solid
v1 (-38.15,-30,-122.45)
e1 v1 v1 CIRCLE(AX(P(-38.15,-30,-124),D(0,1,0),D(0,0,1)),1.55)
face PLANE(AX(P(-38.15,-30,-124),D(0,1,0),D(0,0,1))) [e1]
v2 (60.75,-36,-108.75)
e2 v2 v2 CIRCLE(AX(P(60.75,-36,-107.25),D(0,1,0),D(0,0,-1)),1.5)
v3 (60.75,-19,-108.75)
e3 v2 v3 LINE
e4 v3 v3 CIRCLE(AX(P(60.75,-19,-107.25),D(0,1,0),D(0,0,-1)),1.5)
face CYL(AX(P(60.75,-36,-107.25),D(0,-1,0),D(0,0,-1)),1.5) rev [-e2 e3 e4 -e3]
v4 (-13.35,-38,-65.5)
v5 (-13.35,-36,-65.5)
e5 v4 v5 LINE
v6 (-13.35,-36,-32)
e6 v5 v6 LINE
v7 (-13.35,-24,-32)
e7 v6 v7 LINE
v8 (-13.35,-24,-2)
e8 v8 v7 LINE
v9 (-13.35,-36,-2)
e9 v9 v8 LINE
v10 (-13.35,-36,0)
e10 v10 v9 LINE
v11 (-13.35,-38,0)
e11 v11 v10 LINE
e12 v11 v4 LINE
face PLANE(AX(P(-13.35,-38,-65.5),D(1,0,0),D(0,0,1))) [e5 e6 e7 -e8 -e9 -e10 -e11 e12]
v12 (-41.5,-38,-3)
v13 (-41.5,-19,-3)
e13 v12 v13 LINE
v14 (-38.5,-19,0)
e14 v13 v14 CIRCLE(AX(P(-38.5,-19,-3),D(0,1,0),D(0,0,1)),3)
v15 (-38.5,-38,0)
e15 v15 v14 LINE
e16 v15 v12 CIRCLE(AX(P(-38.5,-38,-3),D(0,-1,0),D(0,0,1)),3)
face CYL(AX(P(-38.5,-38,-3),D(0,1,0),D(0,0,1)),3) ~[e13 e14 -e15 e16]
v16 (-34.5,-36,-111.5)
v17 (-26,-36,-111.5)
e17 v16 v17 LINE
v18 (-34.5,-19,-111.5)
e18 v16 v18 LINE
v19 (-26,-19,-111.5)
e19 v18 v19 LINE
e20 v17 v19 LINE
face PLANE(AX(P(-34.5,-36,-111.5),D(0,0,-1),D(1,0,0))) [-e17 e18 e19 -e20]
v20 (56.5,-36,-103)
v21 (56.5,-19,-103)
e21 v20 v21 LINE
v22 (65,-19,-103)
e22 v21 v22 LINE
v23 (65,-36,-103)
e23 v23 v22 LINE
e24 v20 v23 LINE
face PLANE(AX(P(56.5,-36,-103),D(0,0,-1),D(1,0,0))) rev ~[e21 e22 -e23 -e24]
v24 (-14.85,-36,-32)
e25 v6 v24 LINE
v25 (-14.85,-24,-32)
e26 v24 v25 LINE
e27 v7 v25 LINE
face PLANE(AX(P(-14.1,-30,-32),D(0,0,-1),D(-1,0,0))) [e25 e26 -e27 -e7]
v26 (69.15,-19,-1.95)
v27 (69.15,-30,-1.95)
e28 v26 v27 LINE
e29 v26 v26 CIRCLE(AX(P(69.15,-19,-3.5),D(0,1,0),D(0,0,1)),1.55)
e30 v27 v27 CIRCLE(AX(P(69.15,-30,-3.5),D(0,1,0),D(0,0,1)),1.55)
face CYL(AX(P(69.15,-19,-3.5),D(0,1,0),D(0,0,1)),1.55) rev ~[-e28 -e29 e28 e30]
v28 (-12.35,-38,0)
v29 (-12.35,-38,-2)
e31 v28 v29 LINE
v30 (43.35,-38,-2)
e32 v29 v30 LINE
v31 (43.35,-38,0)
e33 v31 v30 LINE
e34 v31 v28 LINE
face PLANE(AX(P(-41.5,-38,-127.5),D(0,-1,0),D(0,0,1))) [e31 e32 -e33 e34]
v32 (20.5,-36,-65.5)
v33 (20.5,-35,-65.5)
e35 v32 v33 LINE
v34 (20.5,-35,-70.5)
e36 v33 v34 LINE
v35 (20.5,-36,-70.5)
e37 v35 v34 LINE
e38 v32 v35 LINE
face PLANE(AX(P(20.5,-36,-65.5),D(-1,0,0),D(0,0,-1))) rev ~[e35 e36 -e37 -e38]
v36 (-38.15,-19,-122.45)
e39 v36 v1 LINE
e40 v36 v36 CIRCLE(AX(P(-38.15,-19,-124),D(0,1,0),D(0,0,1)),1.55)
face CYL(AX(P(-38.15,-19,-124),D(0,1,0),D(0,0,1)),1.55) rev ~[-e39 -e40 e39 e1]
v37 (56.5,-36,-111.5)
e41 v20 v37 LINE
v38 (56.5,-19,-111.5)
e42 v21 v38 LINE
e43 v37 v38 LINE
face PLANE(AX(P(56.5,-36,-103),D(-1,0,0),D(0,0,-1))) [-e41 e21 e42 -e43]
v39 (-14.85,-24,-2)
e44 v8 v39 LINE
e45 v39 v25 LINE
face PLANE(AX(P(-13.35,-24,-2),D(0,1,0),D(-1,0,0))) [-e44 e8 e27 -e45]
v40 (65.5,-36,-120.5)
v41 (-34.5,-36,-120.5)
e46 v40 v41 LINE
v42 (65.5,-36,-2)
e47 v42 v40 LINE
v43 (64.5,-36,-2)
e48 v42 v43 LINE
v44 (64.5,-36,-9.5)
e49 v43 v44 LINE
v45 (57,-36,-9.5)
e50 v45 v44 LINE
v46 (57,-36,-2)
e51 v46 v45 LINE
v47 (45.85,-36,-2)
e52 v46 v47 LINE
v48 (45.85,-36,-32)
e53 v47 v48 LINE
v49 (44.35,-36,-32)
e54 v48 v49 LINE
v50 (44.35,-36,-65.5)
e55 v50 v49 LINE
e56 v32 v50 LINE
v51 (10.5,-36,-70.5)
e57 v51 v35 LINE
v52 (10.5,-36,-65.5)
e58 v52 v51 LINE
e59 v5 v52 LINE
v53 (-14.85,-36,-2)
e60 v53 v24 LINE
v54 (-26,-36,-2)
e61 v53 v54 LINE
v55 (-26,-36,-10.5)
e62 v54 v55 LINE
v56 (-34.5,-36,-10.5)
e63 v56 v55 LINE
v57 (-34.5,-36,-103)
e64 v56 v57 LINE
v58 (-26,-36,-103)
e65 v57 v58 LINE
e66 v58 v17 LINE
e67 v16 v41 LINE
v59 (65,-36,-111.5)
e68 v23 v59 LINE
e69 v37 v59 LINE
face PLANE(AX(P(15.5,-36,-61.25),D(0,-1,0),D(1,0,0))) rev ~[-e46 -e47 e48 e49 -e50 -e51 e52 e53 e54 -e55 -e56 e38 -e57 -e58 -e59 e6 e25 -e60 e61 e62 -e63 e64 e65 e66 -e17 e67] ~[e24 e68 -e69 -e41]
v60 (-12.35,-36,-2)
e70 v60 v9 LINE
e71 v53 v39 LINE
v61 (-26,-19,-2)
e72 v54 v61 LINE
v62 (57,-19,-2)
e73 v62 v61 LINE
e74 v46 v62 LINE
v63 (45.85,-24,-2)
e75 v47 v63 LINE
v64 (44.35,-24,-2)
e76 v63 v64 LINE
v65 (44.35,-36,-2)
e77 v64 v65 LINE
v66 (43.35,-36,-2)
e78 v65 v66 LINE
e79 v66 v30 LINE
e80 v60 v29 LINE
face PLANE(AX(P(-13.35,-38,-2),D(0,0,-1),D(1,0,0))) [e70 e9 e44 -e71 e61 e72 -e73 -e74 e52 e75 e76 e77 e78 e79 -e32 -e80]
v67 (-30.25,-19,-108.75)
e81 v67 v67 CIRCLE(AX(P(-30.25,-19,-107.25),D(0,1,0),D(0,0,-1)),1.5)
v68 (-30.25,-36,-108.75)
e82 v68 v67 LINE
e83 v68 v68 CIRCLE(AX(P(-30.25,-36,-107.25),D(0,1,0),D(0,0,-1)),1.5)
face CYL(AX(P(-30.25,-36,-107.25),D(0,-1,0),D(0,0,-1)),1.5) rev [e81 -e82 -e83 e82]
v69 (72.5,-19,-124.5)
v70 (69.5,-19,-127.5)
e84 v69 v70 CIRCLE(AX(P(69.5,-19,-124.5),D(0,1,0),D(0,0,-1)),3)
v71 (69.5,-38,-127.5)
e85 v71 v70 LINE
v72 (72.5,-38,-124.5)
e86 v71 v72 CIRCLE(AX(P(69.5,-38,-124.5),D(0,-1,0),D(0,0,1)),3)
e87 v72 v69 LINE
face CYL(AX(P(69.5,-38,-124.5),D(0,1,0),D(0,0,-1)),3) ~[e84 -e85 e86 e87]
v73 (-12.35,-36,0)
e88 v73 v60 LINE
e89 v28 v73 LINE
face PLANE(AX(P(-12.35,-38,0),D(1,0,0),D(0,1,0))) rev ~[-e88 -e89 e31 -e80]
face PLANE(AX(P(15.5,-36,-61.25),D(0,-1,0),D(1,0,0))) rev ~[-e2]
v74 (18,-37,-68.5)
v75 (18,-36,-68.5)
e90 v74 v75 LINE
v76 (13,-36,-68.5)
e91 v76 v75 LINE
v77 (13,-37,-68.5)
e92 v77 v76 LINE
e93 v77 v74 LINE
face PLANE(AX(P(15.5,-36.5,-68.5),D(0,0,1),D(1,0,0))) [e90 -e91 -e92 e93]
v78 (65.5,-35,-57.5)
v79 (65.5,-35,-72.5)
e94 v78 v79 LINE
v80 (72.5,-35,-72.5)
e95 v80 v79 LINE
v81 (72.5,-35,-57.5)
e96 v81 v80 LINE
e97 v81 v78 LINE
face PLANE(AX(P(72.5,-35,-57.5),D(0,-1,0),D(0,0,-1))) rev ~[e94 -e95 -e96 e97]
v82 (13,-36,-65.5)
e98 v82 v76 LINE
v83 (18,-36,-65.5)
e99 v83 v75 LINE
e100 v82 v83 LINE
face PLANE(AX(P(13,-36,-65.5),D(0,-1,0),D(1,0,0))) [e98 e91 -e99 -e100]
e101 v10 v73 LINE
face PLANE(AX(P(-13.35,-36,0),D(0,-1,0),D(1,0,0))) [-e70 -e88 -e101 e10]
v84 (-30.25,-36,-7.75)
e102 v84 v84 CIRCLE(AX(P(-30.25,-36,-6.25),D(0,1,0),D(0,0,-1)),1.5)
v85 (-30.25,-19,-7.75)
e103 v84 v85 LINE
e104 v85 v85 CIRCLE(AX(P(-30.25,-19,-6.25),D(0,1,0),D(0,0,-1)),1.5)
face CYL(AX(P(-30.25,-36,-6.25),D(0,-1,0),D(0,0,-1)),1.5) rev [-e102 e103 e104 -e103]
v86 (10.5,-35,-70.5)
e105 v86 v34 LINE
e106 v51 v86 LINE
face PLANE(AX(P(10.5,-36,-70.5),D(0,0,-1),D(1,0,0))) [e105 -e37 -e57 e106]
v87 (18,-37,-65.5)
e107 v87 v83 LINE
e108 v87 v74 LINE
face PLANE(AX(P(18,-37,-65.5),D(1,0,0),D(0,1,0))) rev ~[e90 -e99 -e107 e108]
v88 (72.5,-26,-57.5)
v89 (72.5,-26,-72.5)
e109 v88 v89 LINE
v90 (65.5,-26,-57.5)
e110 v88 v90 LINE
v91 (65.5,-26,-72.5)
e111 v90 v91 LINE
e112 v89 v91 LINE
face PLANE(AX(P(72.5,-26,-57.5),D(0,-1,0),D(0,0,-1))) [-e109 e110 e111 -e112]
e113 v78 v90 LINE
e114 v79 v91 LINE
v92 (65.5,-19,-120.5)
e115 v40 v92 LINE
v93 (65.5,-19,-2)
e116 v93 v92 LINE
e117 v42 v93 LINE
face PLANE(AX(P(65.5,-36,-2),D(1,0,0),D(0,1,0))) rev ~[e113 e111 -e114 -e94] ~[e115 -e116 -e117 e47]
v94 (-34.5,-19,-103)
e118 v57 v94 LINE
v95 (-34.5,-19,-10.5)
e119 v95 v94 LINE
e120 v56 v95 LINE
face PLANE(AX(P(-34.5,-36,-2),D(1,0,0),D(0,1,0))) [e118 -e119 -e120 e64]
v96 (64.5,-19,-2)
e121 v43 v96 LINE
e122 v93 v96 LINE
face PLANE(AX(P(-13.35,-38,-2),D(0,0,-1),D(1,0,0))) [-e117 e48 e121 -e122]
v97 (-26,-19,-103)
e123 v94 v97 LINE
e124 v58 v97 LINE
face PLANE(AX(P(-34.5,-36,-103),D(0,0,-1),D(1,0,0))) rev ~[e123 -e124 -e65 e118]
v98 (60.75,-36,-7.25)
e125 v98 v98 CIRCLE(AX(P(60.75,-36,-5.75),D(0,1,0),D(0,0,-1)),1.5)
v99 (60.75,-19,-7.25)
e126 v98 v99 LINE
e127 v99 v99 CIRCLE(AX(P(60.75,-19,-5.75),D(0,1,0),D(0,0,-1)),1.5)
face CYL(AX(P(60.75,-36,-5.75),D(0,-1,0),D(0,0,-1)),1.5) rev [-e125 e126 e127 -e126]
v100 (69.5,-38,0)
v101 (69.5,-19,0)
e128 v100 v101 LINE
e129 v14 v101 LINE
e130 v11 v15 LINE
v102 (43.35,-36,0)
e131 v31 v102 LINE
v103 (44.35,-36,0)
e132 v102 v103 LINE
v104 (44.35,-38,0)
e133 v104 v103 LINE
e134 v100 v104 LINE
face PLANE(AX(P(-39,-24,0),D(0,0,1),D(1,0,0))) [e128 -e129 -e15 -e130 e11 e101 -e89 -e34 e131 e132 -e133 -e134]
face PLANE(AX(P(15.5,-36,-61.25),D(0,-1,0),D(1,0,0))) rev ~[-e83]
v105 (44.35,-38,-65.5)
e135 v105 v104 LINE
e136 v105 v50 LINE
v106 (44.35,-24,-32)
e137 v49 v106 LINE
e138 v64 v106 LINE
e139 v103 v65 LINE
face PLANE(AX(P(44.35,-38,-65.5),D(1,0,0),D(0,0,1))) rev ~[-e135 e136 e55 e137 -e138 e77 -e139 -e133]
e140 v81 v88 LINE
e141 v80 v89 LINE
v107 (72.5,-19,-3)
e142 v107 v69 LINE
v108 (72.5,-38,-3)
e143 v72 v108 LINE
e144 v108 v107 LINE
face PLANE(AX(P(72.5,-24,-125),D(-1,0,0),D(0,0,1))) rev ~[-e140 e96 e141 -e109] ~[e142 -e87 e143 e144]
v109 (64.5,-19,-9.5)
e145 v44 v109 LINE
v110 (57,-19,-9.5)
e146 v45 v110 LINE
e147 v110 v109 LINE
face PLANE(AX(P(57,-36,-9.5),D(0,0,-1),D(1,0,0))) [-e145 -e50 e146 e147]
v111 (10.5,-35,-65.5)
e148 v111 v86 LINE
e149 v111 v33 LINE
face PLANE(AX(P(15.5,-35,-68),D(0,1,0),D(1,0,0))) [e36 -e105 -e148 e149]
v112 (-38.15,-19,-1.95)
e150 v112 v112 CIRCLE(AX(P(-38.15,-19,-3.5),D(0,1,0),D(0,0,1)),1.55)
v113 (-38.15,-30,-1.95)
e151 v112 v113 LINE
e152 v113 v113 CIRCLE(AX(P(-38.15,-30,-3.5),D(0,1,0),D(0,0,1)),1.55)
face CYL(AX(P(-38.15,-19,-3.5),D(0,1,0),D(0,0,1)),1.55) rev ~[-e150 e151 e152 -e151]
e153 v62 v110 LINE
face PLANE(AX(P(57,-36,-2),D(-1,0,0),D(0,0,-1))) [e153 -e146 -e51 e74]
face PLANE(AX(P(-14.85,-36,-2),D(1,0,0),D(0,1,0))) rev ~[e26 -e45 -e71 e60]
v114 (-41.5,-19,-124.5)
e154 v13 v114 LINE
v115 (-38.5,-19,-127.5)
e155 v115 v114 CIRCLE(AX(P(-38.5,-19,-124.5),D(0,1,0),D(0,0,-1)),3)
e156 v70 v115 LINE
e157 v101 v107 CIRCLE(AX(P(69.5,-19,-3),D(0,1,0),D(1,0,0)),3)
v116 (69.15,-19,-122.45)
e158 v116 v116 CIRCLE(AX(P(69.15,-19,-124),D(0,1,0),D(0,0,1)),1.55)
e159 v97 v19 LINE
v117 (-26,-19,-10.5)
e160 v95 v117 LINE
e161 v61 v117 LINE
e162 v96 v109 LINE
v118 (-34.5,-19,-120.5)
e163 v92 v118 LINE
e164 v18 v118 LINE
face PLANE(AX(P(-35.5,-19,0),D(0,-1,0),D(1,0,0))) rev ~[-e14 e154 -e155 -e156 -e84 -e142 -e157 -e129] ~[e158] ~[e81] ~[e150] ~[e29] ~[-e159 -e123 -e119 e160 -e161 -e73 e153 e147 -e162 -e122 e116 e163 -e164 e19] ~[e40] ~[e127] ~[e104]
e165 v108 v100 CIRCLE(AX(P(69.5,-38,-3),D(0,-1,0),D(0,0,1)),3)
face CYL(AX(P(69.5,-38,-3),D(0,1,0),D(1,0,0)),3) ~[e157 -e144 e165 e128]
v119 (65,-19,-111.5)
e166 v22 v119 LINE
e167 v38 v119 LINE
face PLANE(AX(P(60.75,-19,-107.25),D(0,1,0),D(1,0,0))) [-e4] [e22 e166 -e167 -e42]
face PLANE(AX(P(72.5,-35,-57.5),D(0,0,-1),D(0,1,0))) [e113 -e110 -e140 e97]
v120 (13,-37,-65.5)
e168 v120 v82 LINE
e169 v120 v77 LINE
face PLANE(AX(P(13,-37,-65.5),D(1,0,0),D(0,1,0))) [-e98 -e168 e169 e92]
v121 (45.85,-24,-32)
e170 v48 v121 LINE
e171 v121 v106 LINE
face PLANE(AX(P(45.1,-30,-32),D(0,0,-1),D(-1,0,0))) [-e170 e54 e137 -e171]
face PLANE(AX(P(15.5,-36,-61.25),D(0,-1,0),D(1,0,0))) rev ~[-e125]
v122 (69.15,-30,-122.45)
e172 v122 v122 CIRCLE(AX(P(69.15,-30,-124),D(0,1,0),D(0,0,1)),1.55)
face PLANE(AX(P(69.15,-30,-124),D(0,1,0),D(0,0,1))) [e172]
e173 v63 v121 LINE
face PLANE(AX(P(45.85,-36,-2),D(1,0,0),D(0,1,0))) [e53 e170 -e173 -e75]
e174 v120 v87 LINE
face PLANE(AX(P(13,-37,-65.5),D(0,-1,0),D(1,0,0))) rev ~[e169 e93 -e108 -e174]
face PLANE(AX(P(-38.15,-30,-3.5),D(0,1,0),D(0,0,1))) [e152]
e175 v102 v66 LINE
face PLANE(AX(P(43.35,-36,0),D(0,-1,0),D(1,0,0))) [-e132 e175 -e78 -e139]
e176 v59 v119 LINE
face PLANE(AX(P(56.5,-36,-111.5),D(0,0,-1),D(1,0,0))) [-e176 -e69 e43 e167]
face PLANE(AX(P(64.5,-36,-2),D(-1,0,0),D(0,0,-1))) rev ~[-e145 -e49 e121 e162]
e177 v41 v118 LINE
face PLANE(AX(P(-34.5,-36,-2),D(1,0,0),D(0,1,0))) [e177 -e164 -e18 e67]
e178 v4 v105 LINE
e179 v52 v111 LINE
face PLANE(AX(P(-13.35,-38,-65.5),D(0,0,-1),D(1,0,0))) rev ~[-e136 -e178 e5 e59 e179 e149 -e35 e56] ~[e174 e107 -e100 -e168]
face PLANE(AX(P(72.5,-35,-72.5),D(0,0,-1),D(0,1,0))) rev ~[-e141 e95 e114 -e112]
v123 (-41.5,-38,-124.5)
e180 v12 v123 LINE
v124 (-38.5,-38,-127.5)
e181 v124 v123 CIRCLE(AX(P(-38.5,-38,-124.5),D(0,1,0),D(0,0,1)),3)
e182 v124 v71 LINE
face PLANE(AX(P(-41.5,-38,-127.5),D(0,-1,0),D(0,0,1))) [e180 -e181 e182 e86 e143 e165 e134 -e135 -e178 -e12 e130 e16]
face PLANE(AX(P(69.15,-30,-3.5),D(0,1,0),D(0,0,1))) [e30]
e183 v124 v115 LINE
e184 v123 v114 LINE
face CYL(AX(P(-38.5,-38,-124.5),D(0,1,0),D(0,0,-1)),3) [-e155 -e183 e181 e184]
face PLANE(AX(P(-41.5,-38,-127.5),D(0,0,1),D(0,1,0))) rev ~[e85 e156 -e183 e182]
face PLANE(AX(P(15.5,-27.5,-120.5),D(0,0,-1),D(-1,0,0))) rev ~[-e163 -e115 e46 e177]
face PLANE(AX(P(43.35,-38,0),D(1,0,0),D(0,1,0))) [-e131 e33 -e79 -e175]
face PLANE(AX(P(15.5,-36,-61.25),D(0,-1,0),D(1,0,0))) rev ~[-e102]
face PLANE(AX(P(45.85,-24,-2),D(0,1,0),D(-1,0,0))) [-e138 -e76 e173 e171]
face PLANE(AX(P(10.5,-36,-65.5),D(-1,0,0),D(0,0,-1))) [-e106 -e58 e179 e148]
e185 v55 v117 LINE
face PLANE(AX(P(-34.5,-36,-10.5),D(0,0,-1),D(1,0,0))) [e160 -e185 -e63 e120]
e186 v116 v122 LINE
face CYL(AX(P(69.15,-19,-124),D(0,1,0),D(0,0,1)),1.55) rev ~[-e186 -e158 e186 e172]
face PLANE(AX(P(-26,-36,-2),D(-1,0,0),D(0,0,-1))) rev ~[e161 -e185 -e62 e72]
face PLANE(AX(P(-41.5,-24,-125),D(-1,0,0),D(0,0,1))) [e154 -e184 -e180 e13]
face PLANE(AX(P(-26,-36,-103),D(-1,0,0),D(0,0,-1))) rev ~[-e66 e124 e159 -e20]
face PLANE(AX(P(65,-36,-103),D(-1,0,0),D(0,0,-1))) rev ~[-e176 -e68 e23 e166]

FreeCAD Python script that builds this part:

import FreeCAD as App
import Part
import Sketcher
from FreeCAD import Vector


def edges_at(feature, points):
    """Names of the edges that pass closest to the given points."""
    edges = feature.Shape.Edges
    near = lambda p: min(range(len(edges)), key=lambda i: edges[i].distToShape(Part.Vertex(*p))[0])
    return sorted({f"Edge{near(p) + 1}" for p in points})


def add_polygon(sketch, points):
    """Adds a closed chain of lines whose ends are joined by coincident constraints."""
    first, n = sketch.GeometryCount, len(points)
    for a, b in zip(points, points[1:] + points[:1]):
        sketch.addGeometry(Part.LineSegment(App.Vector(*a, 0), App.Vector(*b, 0)), False)
    for i in range(n):
        sketch.addConstraint(Sketcher.Constraint("Coincident", first + i, 2, first + (i + 1) % n, 1))

doc = App.newDocument("Part")
body = doc.addObject("PartDesign::Body", "Body")

# Sketch on XY plane
sketch1 = doc.addObject("Sketcher::SketchObject", "Sketch")
body.addObject(sketch1)
sketch1.AttachmentSupport = (doc.XY_Plane, [""])
sketch1.MapMode = "FlatFace"
add_polygon(sketch1, [(39, 0), (0, 0), (0, -10), (-35.5, -10), (-35.5, -19), (-36.5, -19), (-36.5, -36), (67.5, -36), (67.5, -19), (66.5, -19), (66.5, -10), (39, -10)])  # lines 0-11
sketch1.addConstraint([
    Sketcher.Constraint("Horizontal", 0),
    Sketcher.Constraint("Vertical", 1),
    Sketcher.Constraint("Horizontal", 2),
    Sketcher.Constraint("Vertical", 3),
    Sketcher.Constraint("Horizontal", 4),
    Sketcher.Constraint("Vertical", 5),
    Sketcher.Constraint("Horizontal", 6),
    Sketcher.Constraint("Vertical", 7),
    Sketcher.Constraint("Horizontal", 8),
    Sketcher.Constraint("Vertical", 9),
    Sketcher.Constraint("Horizontal", 10),
    Sketcher.Constraint("Vertical", 11),
    Sketcher.Constraint("Coincident", 0, 2, -1, 1),
    Sketcher.Constraint("Horizontal", 4, 2, 7, 2),
    Sketcher.Constraint("Horizontal", 2, 2, 9, 2),
    Sketcher.Constraint("Equal", 4, 8),
    Sketcher.Constraint("DistanceX", 0, 2, 0, 1, 39.0),
    Sketcher.Constraint("DistanceX", 4, 2, 4, 1, 1.0),
    Sketcher.Constraint("DistanceX", 6, 1, 6, 2, 104.0),
    Sketcher.Constraint("DistanceY", 1, 2, 1, 1, 10.0),
    Sketcher.Constraint("DistanceY", 3, 2, 3, 1, 9.0),
    Sketcher.Constraint("DistanceY", 5, 2, 5, 1, 17.0),
    Sketcher.Constraint("DistanceX", 2, 2, 2, 1, 35.5),
])
pad1 = doc.addObject("PartDesign::Pad", "Pad")
body.addObject(pad1)
pad1.Profile = sketch1
pad1.Length = 2
pad1.Reversed = True

# Sketch on XY plane
sketch2 = doc.addObject("Sketcher::SketchObject", "Sketch001")
body.addObject(sketch2)
sketch2.AttachmentSupport = (doc.XY_Plane, [""])
sketch2.MapMode = "FlatFace"
sketch2.AttachmentOffset = App.Placement(Vector(0, 0, -2), App.Rotation())
add_polygon(sketch2, [(67.5, -36), (65.5, -36), (65.5, -11.5), (66.5, -11.5), (66.5, -19), (67.5, -19)])  # lines 0-5
add_polygon(sketch2, [(-34.5, -36), (-36.5, -36), (-36.5, -19), (-35.5, -19), (-35.5, -11.5), (-34.5, -11.5)])  # lines 6-11
sketch2.addConstraint([
    Sketcher.Constraint("Horizontal", 0),
    Sketcher.Constraint("Vertical", 1),
    Sketcher.Constraint("Horizontal", 2),
    Sketcher.Constraint("Vertical", 3),
    Sketcher.Constraint("Horizontal", 4),
    Sketcher.Constraint("Vertical", 5),
    Sketcher.Constraint("Horizontal", 6),
    Sketcher.Constraint("Vertical", 7),
    Sketcher.Constraint("Horizontal", 8),
    Sketcher.Constraint("Vertical", 9),
    Sketcher.Constraint("Horizontal", 10),
    Sketcher.Constraint("Vertical", 11),
    Sketcher.Constraint("Horizontal", 5, 2, 6, 2),
    Sketcher.Constraint("Horizontal", 4, 2, 7, 2),
    Sketcher.Constraint("Horizontal", 2, 2, 9, 2),
    Sketcher.Constraint("Equal", 2, 4),
    Sketcher.Constraint("Equal", 0, 6),
    Sketcher.Constraint("Equal", 4, 8),
    Sketcher.Constraint("DistanceX", 0, 2, 0, 1, 2.0),
    Sketcher.Constraint("DistanceY", 5, 2, 5, 1, 17.0),
    Sketcher.Constraint("DistanceY", 1, 1, 1, 2, 24.5),
    Sketcher.Constraint("DistanceY", 0, 2, -1, 1, 36.0),
    Sketcher.Constraint("DistanceX", 6, 2, 0, 2, 102.0),
    Sketcher.Constraint("DistanceX", -1, 1, 0, 2, 65.5),
])
pad2 = doc.addObject("PartDesign::Pad", "Pad001")
body.addObject(pad2)
pad2.Profile = sketch2
pad2.Length = 120.5
pad2.Reversed = True

# Sketch on XZ plane
sketch3 = doc.addObject("Sketcher::SketchObject", "Sketch002")
body.addObject(sketch3)
sketch3.AttachmentSupport = (doc.XZ_Plane, [""])
sketch3.MapMode = "FlatFace"
sketch3.AttachmentOffset = App.Placement(Vector(0, 0, 36), App.Rotation())
add_polygon(sketch3, [(-36, 0), (-36, -122), (68, -122), (68, 0)])  # lines 0-3
sketch3.addConstraint([
    Sketcher.Constraint("Vertical", 0),
    Sketcher.Constraint("Horizontal", 1),
    Sketcher.Constraint("Vertical", 2),
    Sketcher.Constraint("Horizontal", 3),
    Sketcher.Constraint("PointOnObject", 2, 2, -1),
    Sketcher.Constraint("DistanceX", 1, 1, 1, 2, 104.0),
    Sketcher.Constraint("DistanceY", 0, 2, 0, 1, 122.5),
    Sketcher.Constraint("DistanceX", 0, 2, -1, 1, 36.5),
])
pad3 = doc.addObject("PartDesign::Pad", "Pad002")
body.addObject(pad3)
pad3.Profile = sketch3
pad3.Length = 2

# Sketch on XY plane
sketch4 = doc.addObject("Sketcher::SketchObject", "Sketch003")
body.addObject(sketch4)
sketch4.AttachmentSupport = (doc.XY_Plane, [""])
sketch4.MapMode = "FlatFace"
sketch4.AttachmentOffset = App.Placement(Vector(0, 0, -122.5), App.Rotation())
add_polygon(sketch4, [(66, -19), (66, -36), (-34, -36), (-34, -19)])  # lines 0-3
sketch4.addConstraint([
    Sketcher.Constraint("Vertical", 0),
    Sketcher.Constraint("Horizontal", 1),
    Sketcher.Constraint("Vertical", 2),
    Sketcher.Constraint("Horizontal", 3),
    Sketcher.Constraint("DistanceX", 1, 2, 1, 1, 100.0),
    Sketcher.Constraint("DistanceY", 0, 2, 0, 1, 17.0),
    Sketcher.Constraint("DistanceY", 0, 2, -1, 1, 36.0),
    Sketcher.Constraint("DistanceX", -1, 1, 0, 2, 65.5),
])
pad4 = doc.addObject("PartDesign::Pad", "Pad003")
body.addObject(pad4)
pad4.Profile = sketch4
pad4.Length = 2

# Sketch on XZ plane
sketch5 = doc.addObject("Sketcher::SketchObject", "Sketch004")
body.addObject(sketch5)
sketch5.AttachmentSupport = (doc.XZ_Plane, [""])
sketch5.MapMode = "FlatFace"
sketch5.AttachmentOffset = App.Placement(Vector(0, 0, 36), App.Rotation())
add_polygon(sketch5, [(-34.5, -10.5), (-34.5, -2), (-26, -2), (-26, -10.5)])  # lines 0-3
sketch5.addGeometry(Part.Circle(Vector(-30.2, -6.2, 0), Vector(0, 0, 1), 1.5), False)  # 4
add_polygon(sketch5, [(-34.5, -111.5), (-34.5, -103), (-26, -103), (-26, -111.5)])  # lines 5-8
sketch5.addGeometry(Part.Circle(Vector(-30.2, -107.2, 0), Vector(0, 0, 1), 1.5), False)  # 9
add_polygon(sketch5, [(56.5, -111.5), (56.5, -103), (65, -103), (65, -111.5)])  # lines 10-13
sketch5.addGeometry(Part.Circle(Vector(60.8, -107.2, 0), Vector(0, 0, 1), 1.5), False)  # 14
add_polygon(sketch5, [(57, -9.5), (57, -2), (64.5, -2), (64.5, -9.5)])  # lines 15-18
sketch5.addGeometry(Part.Circle(Vector(60.8, -5.8, 0), Vector(0, 0, 1), 1.5), False)  # 19
sketch5.addConstraint([
    Sketcher.Constraint("Vertical", 0),
    Sketcher.Constraint("Horizontal", 1),
    Sketcher.Constraint("Vertical", 2),
    Sketcher.Constraint("Horizontal", 3),
    Sketcher.Constraint("Vertical", 5),
    Sketcher.Constraint("Horizontal", 6),
    Sketcher.Constraint("Vertical", 7),
    Sketcher.Constraint("Horizontal", 8),
    Sketcher.Constraint("Vertical", 10),
    Sketcher.Constraint("Horizontal", 11),
    Sketcher.Constraint("Vertical", 12),
    Sketcher.Constraint("Horizontal", 13),
    Sketcher.Constraint("Vertical", 15),
    Sketcher.Constraint("Horizontal", 16),
    Sketcher.Constraint("Vertical", 17),
    Sketcher.Constraint("Horizontal", 18),
    Sketcher.Constraint("Equal", 4, 9),
    Sketcher.Constraint("Equal", 9, 14),
    Sketcher.Constraint("Equal", 14, 19),
    Sketcher.Constraint("Horizontal", 9, 3, 14, 3),
    Sketcher.Constraint("Horizontal", 6, 2, 10, 2),
    Sketcher.Constraint("Horizontal", 8, 2, 12, 2),
    Sketcher.Constraint("Horizontal", 1, 2, 15, 2),
    Sketcher.Constraint("Vertical", 4, 3, 9, 3),
    Sketcher.Constraint("Vertical", 14, 3, 19, 3),
    Sketcher.Constraint("Vertical", 3, 2, 5, 2),
    Sketcher.Constraint("Vertical", 2, 2, 6, 2),
    Sketcher.Constraint("Equal", 8, 11),
    Sketcher.Constraint("Equal", 13, 0),
    Sketcher.Constraint("Equal", 2, 5),
    Sketcher.Constraint("Equal", 18, 15),
    Sketcher.Constraint("Diameter", 4, 3.0),
    Sketcher.Constraint("DistanceX", 1, 1, 1, 2, 8.5),
    Sketcher.Constraint("DistanceX", 16, 1, 16, 2, 7.5),
    Sketcher.Constraint("DistanceY", 0, 2, -1, 1, 2.0),
    Sketcher.Constraint("DistanceX", 1, 2, -1, 1, 26.0),
    Sketcher.Constraint("DistanceY", 5, 2, -1, 1, 103.0),
    Sketcher.Constraint("DistanceX", -1, 1, 11, 2, 65.0),
    Sketcher.Constraint("DistanceX", -1, 1, 15, 2, 57.0),
    Sketcher.Constraint("DistanceY", 9, 3, 4, 3, 101.0),
    Sketcher.Constraint("DistanceX", 9, 3, 14, 3, 91.0),
    Sketcher.Constraint("DistanceY", 4, 3, 19, 3, 0.5),
    Sketcher.Constraint("DistanceX", 4, 3, -1, 1, 30.25),
    Sketcher.Constraint("DistanceY", 4, 3, -1, 1, 6.25),
])
pad5 = doc.addObject("PartDesign::Pad", "Pad004")
body.addObject(pad5)
pad5.Profile = sketch5
pad5.Length = 17
pad5.Reversed = True

# Sketch on XY plane
sketch6 = doc.addObject("Sketcher::SketchObject", "Sketch005")
body.addObject(sketch6)
sketch6.AttachmentSupport = (doc.XY_Plane, [""])
sketch6.MapMode = "FlatFace"
add_polygon(sketch6, [(-42, -10), (-42, -38), (-36, -38), (-36, -10)])  # lines 0-3
add_polygon(sketch6, [(68, -10), (68, -38), (72, -38), (72, -10)])  # lines 4-7
sketch6.addConstraint([
    Sketcher.Constraint("Vertical", 0),
    Sketcher.Constraint("Horizontal", 1),
    Sketcher.Constraint("Vertical", 2),
    Sketcher.Constraint("Horizontal", 3),
    Sketcher.Constraint("Vertical", 4),
    Sketcher.Constraint("Horizontal", 5),
    Sketcher.Constraint("Vertical", 6),
    Sketcher.Constraint("Horizontal", 7),
    Sketcher.Constraint("Horizontal", 1, 2, 4, 2),
    Sketcher.Constraint("Horizontal", 3, 2, 6, 2),
    Sketcher.Constraint("Equal", 3, 5),
    Sketcher.Constraint("DistanceX", 1, 1, 1, 2, 5.0),
    Sketcher.Constraint("DistanceY", 0, 2, 0, 1, 28.0),
    Sketcher.Constraint("DistanceY", 0, 2, -1, 1, 38.0),
    Sketcher.Constraint("DistanceX", 1, 2, 4, 2, 104.0),
    Sketcher.Constraint("DistanceX", 0, 2, -1, 1, 41.5),
])
pad6 = doc.addObject("PartDesign::Pad", "Pad005")
body.addObject(pad6)
pad6.Profile = sketch6
pad6.Length = 122.5
pad6.Reversed = True

# Sketch on YZ plane
sketch7 = doc.addObject("Sketcher::SketchObject", "Sketch006")
body.addObject(sketch7)
sketch7.AttachmentSupport = (doc.YZ_Plane, [""])
sketch7.MapMode = "FlatFace"
sketch7.AttachmentOffset = App.Placement(Vector(0, 0, -41.5), App.Rotation())
add_polygon(sketch7, [(-10, -128), (-38, -128), (-38, -122), (-10, -122)])  # lines 0-3
sketch7.addConstraint([
    Sketcher.Constraint("Horizontal", 0),
    Sketcher.Constraint("Vertical", 1),
    Sketcher.Constraint("Horizontal", 2),
    Sketcher.Constraint("Vertical", 3),
    Sketcher.Constraint("DistanceX", 0, 2, 0, 1, 28.0),
    Sketcher.Constraint("DistanceY", 1, 1, 1, 2, 5.0),
    Sketcher.Constraint("DistanceX", 0, 2, -1, 1, 38.0),
    Sketcher.Constraint("DistanceY", 0, 2, -1, 1, 127.5),
])
pad7 = doc.addObject("PartDesign::Pad", "Pad006")
body.addObject(pad7)
pad7.Profile = sketch7
pad7.Length = 114
doc.recompute()

fillet = doc.addObject("PartDesign::Fillet", "Fillet")
body.addObject(fillet)
fillet.Base = (pad7, edges_at(pad7, [
    (-41.5, -24, 0),
    (72.5, -24, 0),
    (-41.5, -24, -127.5),
    (72.5, -24, -127.5),
]))
fillet.Radius = 3

# Sketch on XY plane
sketch8 = doc.addObject("Sketcher::SketchObject", "Sketch007")
body.addObject(sketch8)
sketch8.AttachmentSupport = (doc.XY_Plane, [""])
sketch8.MapMode = "FlatFace"
add_polygon(sketch8, [(-42, -10), (-42, -19), (-36, -19), (-36, -10)])  # lines 0-3
sketch8.addConstraint([
    Sketcher.Constraint("Vertical", 0),
    Sketcher.Constraint("Horizontal", 1),
    Sketcher.Constraint("Vertical", 2),
    Sketcher.Constraint("Horizontal", 3),
    Sketcher.Constraint("DistanceX", 1, 1, 1, 2, 5.0),
    Sketcher.Constraint("DistanceY", 0, 2, 0, 1, 9.0),
    Sketcher.Constraint("DistanceY", 0, 2, -1, 1, 19.0),
    Sketcher.Constraint("DistanceX", 0, 2, -1, 1, 41.5),
])
pocket1 = doc.addObject("PartDesign::Pocket", "Pocket")
body.addObject(pocket1)
pocket1.Profile = sketch8
pocket1.Length = 127.5

# Sketch on XY plane
sketch9 = doc.addObject("Sketcher::SketchObject", "Sketch008")
body.addObject(sketch9)
sketch9.AttachmentSupport = (doc.XY_Plane, [""])
sketch9.MapMode = "FlatFace"
add_polygon(sketch9, [(68, -10), (68, -19), (72, -19), (72, -10)])  # lines 0-3
sketch9.addConstraint([
    Sketcher.Constraint("Vertical", 0),
    Sketcher.Constraint("Horizontal", 1),
    Sketcher.Constraint("Vertical", 2),
    Sketcher.Constraint("Horizontal", 3),
    Sketcher.Constraint("DistanceX", 1, 1, 1, 2, 5.0),
    Sketcher.Constraint("DistanceY", 0, 2, 0, 1, 9.0),
    Sketcher.Constraint("DistanceY", 0, 2, -1, 1, 19.0),
    Sketcher.Constraint("DistanceX", -1, 1, 0, 2, 67.5),
])
pocket2 = doc.addObject("PartDesign::Pocket", "Pocket001")
body.addObject(pocket2)
pocket2.Profile = sketch9
pocket2.Length = 127.5

# Sketch on YZ plane
sketch10 = doc.addObject("Sketcher::SketchObject", "Sketch009")
body.addObject(sketch10)
sketch10.AttachmentSupport = (doc.YZ_Plane, [""])
sketch10.MapMode = "FlatFace"
sketch10.AttachmentOffset = App.Placement(Vector(0, 0, 67.5), App.Rotation())
add_polygon(sketch10, [(-10, -122), (-19, -122), (-19, -128), (-10, -128)])  # lines 0-3
sketch10.addConstraint([
    Sketcher.Constraint("Horizontal", 0),
    Sketcher.Constraint("Vertical", 1),
    Sketcher.Constraint("Horizontal", 2),
    Sketcher.Constraint("Vertical", 3),
    Sketcher.Constraint("DistanceX", 0, 2, 0, 1, 9.0),
    Sketcher.Constraint("DistanceY", 1, 2, 1, 1, 5.0),
    Sketcher.Constraint("DistanceX", 0, 2, -1, 1, 19.0),
    Sketcher.Constraint("DistanceY", 0, 2, -1, 1, 122.5),
])
pocket3 = doc.addObject("PartDesign::Pocket", "Pocket002")
body.addObject(pocket3)
pocket3.Profile = sketch10
pocket3.Type = "UpToFirst"

# Sketch on XZ plane
sketch11 = doc.addObject("Sketcher::SketchObject", "Sketch010")
body.addObject(sketch11)
sketch11.AttachmentSupport = (doc.XZ_Plane, [""])
sketch11.MapMode = "FlatFace"
sketch11.AttachmentOffset = App.Placement(Vector(0, 0, 19), App.Rotation())
sketch11.addGeometry([
    Part.Circle(Vector(-38.1, -124, 0), Vector(0, 0, 1), 1.6),
    Part.Circle(Vector(69.2, -124, 0), Vector(0, 0, 1), 1.6),
    Part.Circle(Vector(-38.1, -3.5, 0), Vector(0, 0, 1), 1.6),
    Part.Circle(Vector(69.2, -3.5, 0), Vector(0, 0, 1), 1.6),
], False)
sketch11.addConstraint([
    Sketcher.Constraint("Equal", 0, 1),
    Sketcher.Constraint("Equal", 1, 2),
    Sketcher.Constraint("Equal", 2, 3),
    Sketcher.Constraint("Horizontal", 0, 3, 1, 3),
    Sketcher.Constraint("Horizontal", 2, 3, 3, 3),
    Sketcher.Constraint("Vertical", 0, 3, 2, 3),
    Sketcher.Constraint("Vertical", 1, 3, 3, 3),
    Sketcher.Constraint("Diameter", 0, 3.1),
    Sketcher.Constraint("DistanceY", 0, 3, -1, 1, 124.0),
    Sketcher.Constraint("DistanceY", 2, 3, -1, 1, 3.5),
    Sketcher.Constraint("DistanceX", 0, 3, 1, 3, 107.3),
    Sketcher.Constraint("DistanceX", 0, 3, -1, 1, 38.15),
])
pocket4 = doc.addObject("PartDesign::Pocket", "Pocket003")
body.addObject(pocket4)
pocket4.Profile = sketch11
pocket4.Length = 11
pocket4.Reversed = True

# Sketch on XZ plane
sketch12 = doc.addObject("Sketcher::SketchObject", "Sketch011")
body.addObject(sketch12)
sketch12.AttachmentSupport = (doc.XZ_Plane, [""])
sketch12.MapMode = "FlatFace"
sketch12.AttachmentOffset = App.Placement(Vector(0, 0, 38), App.Rotation())
add_polygon(sketch12, [(-13, -2), (-13, -66), (44, -66), (44, -2)])  # lines 0-3
sketch12.addConstraint([
    Sketcher.Constraint("Vertical", 0),
    Sketcher.Constraint("Horizontal", 1),
    Sketcher.Constraint("Vertical", 2),
    Sketcher.Constraint("Horizontal", 3),
    Sketcher.Constraint("DistanceX", 1, 1, 1, 2, 57.7),
    Sketcher.Constraint("DistanceY", 0, 2, 0, 1, 63.5),
    Sketcher.Constraint("DistanceY", 2, 2, -1, 1, 2.0),
    Sketcher.Constraint("DistanceX", 0, 2, -1, 1, 13.35),
])
pocket5 = doc.addObject("PartDesign::Pocket", "Pocket004")
body.addObject(pocket5)
pocket5.Profile = sketch12
pocket5.Type = "ThroughAll"

# Sketch on XY plane
sketch13 = doc.addObject("Sketcher::SketchObject", "Sketch012")
body.addObject(sketch13)
sketch13.AttachmentSupport = (doc.XY_Plane, [""])
sketch13.MapMode = "FlatFace"
sketch13.AttachmentOffset = App.Placement(Vector(0, 0, -2), App.Rotation())
add_polygon(sketch13, [(45.9, -24), (45.9, -36), (44.4, -36), (44.4, -24)])  # lines 0-3
add_polygon(sketch13, [(-13.3, -24), (-13.3, -36), (-14.8, -36), (-14.8, -24)])  # lines 4-7
sketch13.addConstraint([
    Sketcher.Constraint("Vertical", 0),
    Sketcher.Constraint("Horizontal", 1),
    Sketcher.Constraint("Vertical", 2),
    Sketcher.Constraint("Horizontal", 3),
    Sketcher.Constraint("Vertical", 4),
    Sketcher.Constraint("Horizontal", 5),
    Sketcher.Constraint("Vertical", 6),
    Sketcher.Constraint("Horizontal", 7),
    Sketcher.Constraint("Horizontal", 1, 2, 4, 2),
    Sketcher.Constraint("Horizontal", 3, 2, 6, 2),
    Sketcher.Constraint("Equal", 3, 5),
    Sketcher.Constraint("DistanceY", 0, 2, 0, 1, 12.0),
    Sketcher.Constraint("DistanceX", 1, 2, 1, 1, 1.5),
    Sketcher.Constraint("DistanceY", 0, 2, -1, 1, 36.0),
    Sketcher.Constraint("DistanceX", 4, 2, 1, 2, 57.7),
    Sketcher.Constraint("DistanceX", -1, 1, 0, 2, 45.85),
])
pad8 = doc.addObject("PartDesign::Pad", "Pad007")
body.addObject(pad8)
pad8.Profile = sketch13
pad8.Length = 30
pad8.Reversed = True

# Sketch on XZ plane
sketch14 = doc.addObject("Sketcher::SketchObject", "Sketch013")
body.addObject(sketch14)
sketch14.AttachmentSupport = (doc.XZ_Plane, [""])
sketch14.MapMode = "FlatFace"
sketch14.AttachmentOffset = App.Placement(Vector(0, 0, 36), App.Rotation())
add_polygon(sketch14, [(10, -70), (10, -66), (20, -66), (20, -70)])  # lines 0-3
sketch14.addConstraint([
    Sketcher.Constraint("Vertical", 0),
    Sketcher.Constraint("Horizontal", 1),
    Sketcher.Constraint("Vertical", 2),
    Sketcher.Constraint("Horizontal", 3),
    Sketcher.Constraint("DistanceX", 1, 1, 1, 2, 10.0),
    Sketcher.Constraint("DistanceY", 0, 1, 0, 2, 5.0),
    Sketcher.Constraint("DistanceX", -1, 1, 0, 2, 10.5),
    Sketcher.Constraint("DistanceY", 0, 2, -1, 1, 65.5),
])
pad9 = doc.addObject("PartDesign::Pad", "Pad008")
body.addObject(pad9)
pad9.Profile = sketch14
pad9.Length = 1
pad9.Reversed = True

# Sketch on XY plane
sketch15 = doc.addObject("Sketcher::SketchObject", "Sketch014")
body.addObject(sketch15)
sketch15.AttachmentSupport = (doc.XY_Plane, [""])
sketch15.MapMode = "FlatFace"
sketch15.AttachmentOffset = App.Placement(Vector(0, 0, -65.5), App.Rotation())
add_polygon(sketch15, [(13, -36), (13, -37), (18, -37), (18, -36)])  # lines 0-3
sketch15.addConstraint([
    Sketcher.Constraint("Vertical", 0),
    Sketcher.Constraint("Horizontal", 1),
    Sketcher.Constraint("Vertical", 2),
    Sketcher.Constraint("Horizontal", 3),
    Sketcher.Constraint("DistanceX", 1, 1, 1, 2, 5.0),
    Sketcher.Constraint("DistanceY", 0, 2, 0, 1, 1.0),
    Sketcher.Constraint("DistanceX", -1, 1, 0, 2, 13.0),
    Sketcher.Constraint("DistanceY", 0, 2, -1, 1, 37.0),
])
pocket6 = doc.addObject("PartDesign::Pocket", "Pocket005")
body.addObject(pocket6)
pocket6.Profile = sketch15
pocket6.Length = 3

# Sketch on XY plane
sketch16 = doc.addObject("Sketcher::SketchObject", "Sketch015")
body.addObject(sketch16)
sketch16.AttachmentSupport = (doc.XY_Plane, [""])
sketch16.MapMode = "FlatFace"
add_polygon(sketch16, [(43.4, -36), (43.4, -38), (44.4, -38), (44.4, -36)])  # lines 0-3
add_polygon(sketch16, [(-13.3, -36), (-13.3, -38), (-12.3, -38), (-12.3, -36)])  # lines 4-7
sketch16.addConstraint([
    Sketcher.Constraint("Vertical", 0),
    Sketcher.Constraint("Horizontal", 1),
    Sketcher.Constraint("Vertical", 2),
    Sketcher.Constraint("Horizontal", 3),
    Sketcher.Constraint("Vertical", 4),
    Sketcher.Constraint("Horizontal", 5),
    Sketcher.Constraint("Vertical", 6),
    Sketcher.Constraint("Horizontal", 7),
    Sketcher.Constraint("Horizontal", 1, 2, 4, 2),
    Sketcher.Constraint("Horizontal", 3, 2, 6, 2),
    Sketcher.Constraint("Equal", 3, 5),
    Sketcher.Constraint("DistanceX", 1, 1, 1, 2, 1.0),
    Sketcher.Constraint("DistanceY", 0, 2, 0, 1, 2.0),
    Sketcher.Constraint("DistanceY", 0, 2, -1, 1, 38.0),
    Sketcher.Constraint("DistanceX", 4, 2, 0, 2, 56.7),
    Sketcher.Constraint("DistanceX", -1, 1, 0, 2, 43.35),
])
pocket7 = doc.addObject("PartDesign::Pocket", "Pocket006")
body.addObject(pocket7)
pocket7.Profile = sketch16
pocket7.Length = 10

# Sketch on XY plane
sketch17 = doc.addObject("Sketcher::SketchObject", "Sketch016")
body.addObject(sketch17)
sketch17.AttachmentSupport = (doc.XY_Plane, [""])
sketch17.MapMode = "FlatFace"
sketch17.AttachmentOffset = App.Placement(Vector(0, 0, -127.5), App.Rotation())
add_polygon(sketch17, [(66, -12), (66, -19), (-36, -19), (-36, -12)])  # lines 0-3
sketch17.addConstraint([
    Sketcher.Constraint("Vertical", 0),
    Sketcher.Constraint("Horizontal", 1),
    Sketcher.Constraint("Vertical", 2),
    Sketcher.Constraint("Horizontal", 3),
    Sketcher.Constraint("DistanceX", 1, 2, 1, 1, 102.0),
    Sketcher.Constraint("DistanceY", 0, 2, 0, 1, 7.5),
    Sketcher.Constraint("DistanceY", 0, 2, -1, 1, 19.0),
    Sketcher.Constraint("DistanceX", -1, 1, 0, 2, 66.5),
])
pocket8 = doc.addObject("PartDesign::Pocket", "Pocket007")
body.addObject(pocket8)
pocket8.Profile = sketch17
pocket8.Length = 125.5
pocket8.Reversed = True

# Sketch on XY plane
sketch18 = doc.addObject("Sketcher::SketchObject", "Sketch017")
body.addObject(sketch18)
sketch18.AttachmentSupport = (doc.XY_Plane, [""])
sketch18.MapMode = "FlatFace"
add_polygon(sketch18, [(-36, 0), (-36, -19), (66, -19), (66, 0)])  # lines 0-3
sketch18.addConstraint([
    Sketcher.Constraint("Vertical", 0),
    Sketcher.Constraint("Horizontal", 1),
    Sketcher.Constraint("Vertical", 2),
    Sketcher.Constraint("Horizontal", 3),
    Sketcher.Constraint("PointOnObject", 2, 2, -1),
    Sketcher.Constraint("DistanceX", 1, 1, 1, 2, 102.0),
    Sketcher.Constraint("DistanceY", 0, 2, 0, 1, 19.0),
    Sketcher.Constraint("DistanceX", 0, 2, -1, 1, 35.5),
])
pocket9 = doc.addObject("PartDesign::Pocket", "Pocket008")
body.addObject(pocket9)
pocket9.Profile = sketch18
pocket9.Type = "ThroughAll"

# Sketch on YZ plane
sketch19 = doc.addObject("Sketcher::SketchObject", "Sketch018")
body.addObject(sketch19)
sketch19.AttachmentSupport = (doc.YZ_Plane, [""])
sketch19.MapMode = "FlatFace"
sketch19.AttachmentOffset = App.Placement(Vector(0, 0, 72.5), App.Rotation())
add_polygon(sketch19, [(-26, -58), (-35, -58), (-35, -72), (-26, -72)])  # lines 0-3
sketch19.addConstraint([
    Sketcher.Constraint("Horizontal", 0),
    Sketcher.Constraint("Vertical", 1),
    Sketcher.Constraint("Horizontal", 2),
    Sketcher.Constraint("Vertical", 3),
    Sketcher.Constraint("DistanceX", 0, 2, 0, 1, 9.0),
    Sketcher.Constraint("DistanceY", 1, 2, 1, 1, 15.0),
    Sketcher.Constraint("DistanceX", 0, 2, -1, 1, 35.0),
    Sketcher.Constraint("DistanceY", 0, 2, -1, 1, 57.5),
])
pocket10 = doc.addObject("PartDesign::Pocket", "Pocket009")
body.addObject(pocket10)
pocket10.Profile = sketch19
pocket10.Length = 10

doc.recompute()
